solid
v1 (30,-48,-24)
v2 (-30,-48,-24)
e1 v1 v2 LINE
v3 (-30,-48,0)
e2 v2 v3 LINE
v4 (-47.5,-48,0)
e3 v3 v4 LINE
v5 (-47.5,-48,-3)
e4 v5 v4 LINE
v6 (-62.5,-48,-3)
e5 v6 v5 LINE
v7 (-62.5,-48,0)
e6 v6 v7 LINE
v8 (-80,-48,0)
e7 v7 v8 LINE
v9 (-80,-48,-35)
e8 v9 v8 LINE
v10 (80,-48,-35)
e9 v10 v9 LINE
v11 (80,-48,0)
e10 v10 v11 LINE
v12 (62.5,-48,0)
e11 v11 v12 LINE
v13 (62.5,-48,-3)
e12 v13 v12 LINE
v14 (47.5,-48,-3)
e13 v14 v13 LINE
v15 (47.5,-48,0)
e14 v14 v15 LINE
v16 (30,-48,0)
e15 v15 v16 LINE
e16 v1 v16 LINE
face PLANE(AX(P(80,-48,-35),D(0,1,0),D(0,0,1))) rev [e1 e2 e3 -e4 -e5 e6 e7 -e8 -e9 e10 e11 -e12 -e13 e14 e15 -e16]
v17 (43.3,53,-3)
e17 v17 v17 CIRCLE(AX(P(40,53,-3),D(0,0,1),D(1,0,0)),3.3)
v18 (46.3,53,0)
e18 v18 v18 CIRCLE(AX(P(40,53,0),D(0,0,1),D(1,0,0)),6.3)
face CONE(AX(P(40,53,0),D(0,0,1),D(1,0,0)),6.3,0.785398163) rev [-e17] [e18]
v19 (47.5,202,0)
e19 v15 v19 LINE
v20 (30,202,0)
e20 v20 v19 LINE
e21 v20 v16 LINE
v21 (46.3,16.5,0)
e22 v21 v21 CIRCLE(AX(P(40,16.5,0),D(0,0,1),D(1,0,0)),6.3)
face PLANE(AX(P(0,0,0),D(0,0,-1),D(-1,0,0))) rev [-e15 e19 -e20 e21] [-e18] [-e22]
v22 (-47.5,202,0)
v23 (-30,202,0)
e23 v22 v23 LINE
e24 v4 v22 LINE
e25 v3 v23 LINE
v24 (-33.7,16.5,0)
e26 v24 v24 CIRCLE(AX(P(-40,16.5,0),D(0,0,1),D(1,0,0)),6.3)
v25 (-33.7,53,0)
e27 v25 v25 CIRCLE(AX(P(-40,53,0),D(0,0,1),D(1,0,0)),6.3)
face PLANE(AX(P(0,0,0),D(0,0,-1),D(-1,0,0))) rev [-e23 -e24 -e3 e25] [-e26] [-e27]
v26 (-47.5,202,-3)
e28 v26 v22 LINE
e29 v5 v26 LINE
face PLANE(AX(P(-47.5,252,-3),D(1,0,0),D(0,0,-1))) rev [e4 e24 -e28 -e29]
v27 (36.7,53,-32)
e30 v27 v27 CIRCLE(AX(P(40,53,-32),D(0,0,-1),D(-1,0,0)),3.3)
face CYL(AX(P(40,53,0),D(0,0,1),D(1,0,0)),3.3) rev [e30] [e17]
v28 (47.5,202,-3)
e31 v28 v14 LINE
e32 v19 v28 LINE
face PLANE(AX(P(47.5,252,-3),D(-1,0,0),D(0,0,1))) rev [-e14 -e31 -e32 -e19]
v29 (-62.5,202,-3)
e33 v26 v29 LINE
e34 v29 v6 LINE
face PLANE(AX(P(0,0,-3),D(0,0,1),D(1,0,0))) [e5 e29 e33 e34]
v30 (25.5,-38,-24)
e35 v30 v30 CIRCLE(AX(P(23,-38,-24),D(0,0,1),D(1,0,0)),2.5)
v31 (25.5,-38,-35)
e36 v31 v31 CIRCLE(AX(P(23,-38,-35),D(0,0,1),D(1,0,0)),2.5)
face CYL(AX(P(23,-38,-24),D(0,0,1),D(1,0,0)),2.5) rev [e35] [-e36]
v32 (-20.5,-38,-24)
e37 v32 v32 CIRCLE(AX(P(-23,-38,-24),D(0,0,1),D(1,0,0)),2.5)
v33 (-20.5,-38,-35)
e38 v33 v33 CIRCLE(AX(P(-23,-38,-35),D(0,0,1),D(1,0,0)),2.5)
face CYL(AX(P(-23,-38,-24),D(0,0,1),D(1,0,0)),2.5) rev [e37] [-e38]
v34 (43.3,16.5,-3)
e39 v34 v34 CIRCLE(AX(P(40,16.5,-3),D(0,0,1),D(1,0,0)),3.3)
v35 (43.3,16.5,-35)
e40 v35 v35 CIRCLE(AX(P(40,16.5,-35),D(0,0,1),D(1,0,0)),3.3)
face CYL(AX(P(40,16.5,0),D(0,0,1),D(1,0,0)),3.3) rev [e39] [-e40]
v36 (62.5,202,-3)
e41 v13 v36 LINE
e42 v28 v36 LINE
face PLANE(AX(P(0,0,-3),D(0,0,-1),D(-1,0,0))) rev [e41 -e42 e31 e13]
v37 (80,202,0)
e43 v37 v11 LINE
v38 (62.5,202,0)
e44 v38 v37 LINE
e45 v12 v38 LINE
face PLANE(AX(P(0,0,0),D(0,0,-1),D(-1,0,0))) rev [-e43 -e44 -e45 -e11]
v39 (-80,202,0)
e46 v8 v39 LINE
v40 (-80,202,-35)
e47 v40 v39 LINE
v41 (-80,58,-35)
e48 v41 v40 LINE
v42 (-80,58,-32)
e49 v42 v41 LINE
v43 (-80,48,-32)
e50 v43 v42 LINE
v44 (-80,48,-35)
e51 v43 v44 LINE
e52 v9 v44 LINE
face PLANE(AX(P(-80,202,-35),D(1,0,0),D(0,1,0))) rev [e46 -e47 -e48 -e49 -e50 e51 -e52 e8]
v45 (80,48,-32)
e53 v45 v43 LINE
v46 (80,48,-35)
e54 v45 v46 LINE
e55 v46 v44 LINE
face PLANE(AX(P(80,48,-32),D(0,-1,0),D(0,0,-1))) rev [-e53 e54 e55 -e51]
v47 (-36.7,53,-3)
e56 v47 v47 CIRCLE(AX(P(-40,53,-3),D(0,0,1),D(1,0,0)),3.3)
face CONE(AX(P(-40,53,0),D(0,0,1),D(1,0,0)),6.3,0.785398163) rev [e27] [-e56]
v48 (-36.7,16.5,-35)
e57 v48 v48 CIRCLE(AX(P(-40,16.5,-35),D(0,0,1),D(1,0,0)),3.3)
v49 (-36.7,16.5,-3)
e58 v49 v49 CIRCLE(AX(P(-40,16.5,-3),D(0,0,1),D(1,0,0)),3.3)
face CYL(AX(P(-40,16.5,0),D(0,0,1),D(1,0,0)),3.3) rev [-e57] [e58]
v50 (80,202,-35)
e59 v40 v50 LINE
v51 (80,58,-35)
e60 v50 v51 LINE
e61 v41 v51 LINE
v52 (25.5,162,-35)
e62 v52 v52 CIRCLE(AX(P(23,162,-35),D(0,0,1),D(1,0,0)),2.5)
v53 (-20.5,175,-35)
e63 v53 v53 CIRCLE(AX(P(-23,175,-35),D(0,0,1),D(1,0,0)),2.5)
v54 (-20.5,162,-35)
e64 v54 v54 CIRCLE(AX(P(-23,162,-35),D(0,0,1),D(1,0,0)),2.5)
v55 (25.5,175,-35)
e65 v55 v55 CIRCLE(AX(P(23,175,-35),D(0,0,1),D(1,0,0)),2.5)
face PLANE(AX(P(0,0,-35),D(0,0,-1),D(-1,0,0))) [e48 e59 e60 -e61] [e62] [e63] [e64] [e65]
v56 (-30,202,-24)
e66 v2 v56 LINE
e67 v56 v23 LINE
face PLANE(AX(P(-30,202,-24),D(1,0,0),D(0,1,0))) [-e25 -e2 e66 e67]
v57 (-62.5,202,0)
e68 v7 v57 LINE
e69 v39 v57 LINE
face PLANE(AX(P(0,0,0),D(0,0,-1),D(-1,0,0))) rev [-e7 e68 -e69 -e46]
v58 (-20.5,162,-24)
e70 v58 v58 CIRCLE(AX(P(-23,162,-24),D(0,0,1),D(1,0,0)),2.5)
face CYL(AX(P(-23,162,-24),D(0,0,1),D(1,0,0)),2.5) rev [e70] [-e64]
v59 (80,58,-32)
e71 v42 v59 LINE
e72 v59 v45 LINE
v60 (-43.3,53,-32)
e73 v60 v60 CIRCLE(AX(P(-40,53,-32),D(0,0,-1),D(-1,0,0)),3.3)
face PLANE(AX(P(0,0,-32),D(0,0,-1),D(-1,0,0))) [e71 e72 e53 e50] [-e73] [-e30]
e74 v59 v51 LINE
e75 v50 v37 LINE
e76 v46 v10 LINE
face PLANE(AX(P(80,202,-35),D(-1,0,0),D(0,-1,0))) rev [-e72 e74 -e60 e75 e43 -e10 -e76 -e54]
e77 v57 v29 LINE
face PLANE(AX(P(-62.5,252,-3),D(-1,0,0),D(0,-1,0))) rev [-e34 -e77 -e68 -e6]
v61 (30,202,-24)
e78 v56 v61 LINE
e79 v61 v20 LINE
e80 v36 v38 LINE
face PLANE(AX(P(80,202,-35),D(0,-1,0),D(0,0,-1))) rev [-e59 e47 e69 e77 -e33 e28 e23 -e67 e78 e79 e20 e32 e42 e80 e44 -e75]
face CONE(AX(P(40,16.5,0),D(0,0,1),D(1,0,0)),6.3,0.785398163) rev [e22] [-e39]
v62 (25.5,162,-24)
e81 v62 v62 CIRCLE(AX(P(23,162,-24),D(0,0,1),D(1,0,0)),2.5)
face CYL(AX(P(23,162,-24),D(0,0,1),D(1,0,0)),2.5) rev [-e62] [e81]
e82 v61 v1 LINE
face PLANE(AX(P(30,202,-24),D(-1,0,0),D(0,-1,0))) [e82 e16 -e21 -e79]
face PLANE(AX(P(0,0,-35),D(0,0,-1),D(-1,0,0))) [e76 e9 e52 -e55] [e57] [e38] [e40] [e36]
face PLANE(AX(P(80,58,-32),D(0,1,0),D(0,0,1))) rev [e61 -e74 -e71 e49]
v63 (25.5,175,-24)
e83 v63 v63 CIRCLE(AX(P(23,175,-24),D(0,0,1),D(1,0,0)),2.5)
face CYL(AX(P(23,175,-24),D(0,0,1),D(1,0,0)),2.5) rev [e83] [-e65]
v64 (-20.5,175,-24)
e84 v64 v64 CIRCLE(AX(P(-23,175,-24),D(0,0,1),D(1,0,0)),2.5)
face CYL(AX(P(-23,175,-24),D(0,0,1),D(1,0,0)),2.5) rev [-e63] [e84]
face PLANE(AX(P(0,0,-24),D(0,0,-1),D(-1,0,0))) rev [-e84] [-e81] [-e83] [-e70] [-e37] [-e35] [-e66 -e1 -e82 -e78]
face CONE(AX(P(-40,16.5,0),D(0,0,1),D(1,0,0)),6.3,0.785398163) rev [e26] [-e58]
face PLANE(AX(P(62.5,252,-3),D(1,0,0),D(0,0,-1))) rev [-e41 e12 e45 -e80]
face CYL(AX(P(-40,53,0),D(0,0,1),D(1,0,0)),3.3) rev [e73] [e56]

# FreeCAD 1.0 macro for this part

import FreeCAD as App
import Part
import Sketcher
from FreeCAD import Vector


def add_polygon(sketch, points):
    """Adds a closed chain of lines whose ends are joined by coincident constraints."""
    first, n = sketch.GeometryCount, len(points)
    for a, b in zip(points, points[1:] + points[:1]):
        sketch.addGeometry(Part.LineSegment(App.Vector(*a, 0), App.Vector(*b, 0)), False)
    for i in range(n):
        sketch.addConstraint(Sketcher.Constraint("Coincident", first + i, 2, first + (i + 1) % n, 1))

doc = App.newDocument("Part")
body = doc.addObject("PartDesign::Body", "Body")

# Sketch on XY plane
sketch1 = doc.addObject("Sketcher::SketchObject", "Sketch")
body.addObject(sketch1)
sketch1.AttachmentSupport = (doc.XY_Plane, [""])
sketch1.MapMode = "FlatFace"
add_polygon(sketch1, [(80, 202), (80, -48), (-80, -48), (-80, 202)])  # lines 0-3
sketch1.addConstraint(Sketcher.Constraint("Vertical", 0))
sketch1.addConstraint(Sketcher.Constraint("Horizontal", 1))
sketch1.addConstraint(Sketcher.Constraint("Vertical", 2))
sketch1.addConstraint(Sketcher.Constraint("Horizontal", 3))
sketch1.addConstraint(Sketcher.Constraint("DistanceX", 1, 2, 1, 1, 160.0))
sketch1.addConstraint(Sketcher.Constraint("DistanceY", 0, 2, 0, 1, 250.0))
sketch1.addConstraint(Sketcher.Constraint("DistanceX", -1, 1, 0, 2, 80.0))
sketch1.addConstraint(Sketcher.Constraint("DistanceY", 0, 2, -1, 1, 48.0))
pad1 = doc.addObject("PartDesign::Pad", "Pad")
body.addObject(pad1)
pad1.Profile = sketch1
pad1.Length = 35
pad1.Reversed = True

# Sketch on XY plane
sketch2 = doc.addObject("Sketcher::SketchObject", "Sketch001")
body.addObject(sketch2)
sketch2.AttachmentSupport = (doc.XY_Plane, [""])
sketch2.MapMode = "FlatFace"
sketch2.AttachmentOffset = App.Placement(Vector(0, 0, -35), App.Rotation())
add_polygon(sketch2, [(80, 58), (80, 48), (-80, 48), (-80, 58)])  # lines 0-3
sketch2.addConstraint(Sketcher.Constraint("Vertical", 0))
sketch2.addConstraint(Sketcher.Constraint("Horizontal", 1))
sketch2.addConstraint(Sketcher.Constraint("Vertical", 2))
sketch2.addConstraint(Sketcher.Constraint("Horizontal", 3))
sketch2.addConstraint(Sketcher.Constraint("DistanceX", 1, 2, 1, 1, 160.0))
sketch2.addConstraint(Sketcher.Constraint("DistanceY", 0, 2, 0, 1, 10.0))
sketch2.addConstraint(Sketcher.Constraint("DistanceX", -1, 1, 0, 2, 80.0))
sketch2.addConstraint(Sketcher.Constraint("DistanceY", -1, 1, 0, 2, 48.0))
pocket1 = doc.addObject("PartDesign::Pocket", "Pocket")
body.addObject(pocket1)
pocket1.Profile = sketch2
pocket1.Length = 3
pocket1.Reversed = True

# Sketch on XY plane
sketch3 = doc.addObject("Sketcher::SketchObject", "Sketch002")
body.addObject(sketch3)
sketch3.AttachmentSupport = (doc.XY_Plane, [""])
sketch3.MapMode = "FlatFace"
sketch3.addGeometry(Part.Circle(Vector(-40, 53, 0), Vector(0, 0, 1), 3.3), False)
sketch3.addGeometry(Part.Circle(Vector(40, 53, 0), Vector(0, 0, 1), 3.3), False)
sketch3.addGeometry(Part.Circle(Vector(-40, 16.5, 0), Vector(0, 0, 1), 3.3), False)
sketch3.addGeometry(Part.Circle(Vector(40, 16.5, 0), Vector(0, 0, 1), 3.3), False)
sketch3.addConstraint(Sketcher.Constraint("Equal", 0, 1))
sketch3.addConstraint(Sketcher.Constraint("Equal", 1, 2))
sketch3.addConstraint(Sketcher.Constraint("Equal", 2, 3))
sketch3.addConstraint(Sketcher.Constraint("Symmetric", 0, 3, 1, 3, -2))
sketch3.addConstraint(Sketcher.Constraint("Symmetric", 2, 3, 3, 3, -2))
sketch3.addConstraint(Sketcher.Constraint("Vertical", 0, 3, 2, 3))
sketch3.addConstraint(Sketcher.Constraint("Diameter", 0, 6.6))
sketch3.addConstraint(Sketcher.Constraint("DistanceX", 0, 3, -1, 1, 40.0))
sketch3.addConstraint(Sketcher.Constraint("DistanceY", -1, 1, 0, 3, 53.0))
sketch3.addConstraint(Sketcher.Constraint("DistanceY", -1, 1, 2, 3, 16.5))
doc.recompute()
hole = doc.addObject("PartDesign::Hole", "Hole")
body.addObject(hole)
hole.Profile = sketch3
hole.ThreadType = "None"
hole.Diameter = 6.6
hole.DepthType = "ThroughAll"
hole.HoleCutType = "Countersink"
hole.HoleCutDiameter = 12.6
hole.HoleCutCountersinkAngle = 90

# Sketch on XY plane
sketch4 = doc.addObject("Sketcher::SketchObject", "Sketch003")
body.addObject(sketch4)
sketch4.AttachmentSupport = (doc.XY_Plane, [""])
sketch4.MapMode = "FlatFace"
add_polygon(sketch4, [(30, 202), (30, -48), (-30, -48), (-30, 202)])  # lines 0-3
sketch4.addConstraint(Sketcher.Constraint("Vertical", 0))
sketch4.addConstraint(Sketcher.Constraint("Horizontal", 1))
sketch4.addConstraint(Sketcher.Constraint("Vertical", 2))
sketch4.addConstraint(Sketcher.Constraint("Horizontal", 3))
sketch4.addConstraint(Sketcher.Constraint("DistanceX", 1, 2, 1, 1, 60.0))
sketch4.addConstraint(Sketcher.Constraint("DistanceY", 0, 2, 0, 1, 250.0))
sketch4.addConstraint(Sketcher.Constraint("DistanceX", -1, 1, 0, 2, 30.0))
sketch4.addConstraint(Sketcher.Constraint("DistanceY", 0, 2, -1, 1, 48.0))
pocket2 = doc.addObject("PartDesign::Pocket", "Pocket001")
body.addObject(pocket2)
pocket2.Profile = sketch4
pocket2.Length = 24

# Sketch on XY plane
sketch5 = doc.addObject("Sketcher::SketchObject", "Sketch004")
body.addObject(sketch5)
sketch5.AttachmentSupport = (doc.XY_Plane, [""])
sketch5.MapMode = "FlatFace"
add_polygon(sketch5, [(-62, 252), (-62, -48), (-48, -48), (-48, 252)])  # lines 0-3
add_polygon(sketch5, [(48, 252), (48, -48), (62, -48), (62, 252)])  # lines 4-7
sketch5.addConstraint(Sketcher.Constraint("Vertical", 0))
sketch5.addConstraint(Sketcher.Constraint("Horizontal", 1))
sketch5.addConstraint(Sketcher.Constraint("Vertical", 2))
sketch5.addConstraint(Sketcher.Constraint("Horizontal", 3))
sketch5.addConstraint(Sketcher.Constraint("Vertical", 4))
sketch5.addConstraint(Sketcher.Constraint("Horizontal", 5))
sketch5.addConstraint(Sketcher.Constraint("Vertical", 6))
sketch5.addConstraint(Sketcher.Constraint("Horizontal", 7))
sketch5.addConstraint(Sketcher.Constraint("Symmetric", 1, 2, 4, 2, -2))
sketch5.addConstraint(Sketcher.Constraint("Symmetric", 3, 2, 6, 2, -2))
sketch5.addConstraint(Sketcher.Constraint("DistanceX", 1, 1, 1, 2, 15.0))
sketch5.addConstraint(Sketcher.Constraint("DistanceY", 0, 2, 0, 1, 300.0))
sketch5.addConstraint(Sketcher.Constraint("DistanceY", 0, 2, -1, 1, 48.0))
sketch5.addConstraint(Sketcher.Constraint("DistanceX", 1, 2, 4, 2, 95.0))
pocket3 = doc.addObject("PartDesign::Pocket", "Pocket002")
body.addObject(pocket3)
pocket3.Profile = sketch5
pocket3.Length = 3

# Sketch on XY plane
sketch6 = doc.addObject("Sketcher::SketchObject", "Sketch005")
body.addObject(sketch6)
sketch6.AttachmentSupport = (doc.XY_Plane, [""])
sketch6.MapMode = "FlatFace"
sketch6.AttachmentOffset = App.Placement(Vector(0, 0, -24), App.Rotation())
sketch6.addGeometry(Part.Circle(Vector(-23, -38, 0), Vector(0, 0, 1), 2.5), False)
sketch6.addGeometry(Part.Circle(Vector(23, -38, 0), Vector(0, 0, 1), 2.5), False)
sketch6.addConstraint(Sketcher.Constraint("Equal", 0, 1))
sketch6.addConstraint(Sketcher.Constraint("Symmetric", 0, 3, 1, 3, -2))
sketch6.addConstraint(Sketcher.Constraint("Diameter", 0, 5.0))
sketch6.addConstraint(Sketcher.Constraint("DistanceX", 0, 3, -1, 1, 23.0))
sketch6.addConstraint(Sketcher.Constraint("DistanceY", 0, 3, -1, 1, 38.0))
doc.recompute()
hole2 = doc.addObject("PartDesign::Hole", "Hole001")
body.addObject(hole2)
hole2.Profile = sketch6
hole2.ThreadType = "None"
hole2.Diameter = 5
hole2.DepthType = "ThroughAll"

# Sketch on XY plane
sketch7 = doc.addObject("Sketcher::SketchObject", "Sketch006")
body.addObject(sketch7)
sketch7.AttachmentSupport = (doc.XY_Plane, [""])
sketch7.MapMode = "FlatFace"
sketch7.AttachmentOffset = App.Placement(Vector(0, 0, -24), App.Rotation())
sketch7.addGeometry(Part.Circle(Vector(-23, 162, 0), Vector(0, 0, 1), 2.5), False)
sketch7.addGeometry(Part.Circle(Vector(23, 162, 0), Vector(0, 0, 1), 2.5), False)
sketch7.addGeometry(Part.Circle(Vector(-23, 175, 0), Vector(0, 0, 1), 2.5), False)
sketch7.addGeometry(Part.Circle(Vector(23, 175, 0), Vector(0, 0, 1), 2.5), False)
sketch7.addConstraint(Sketcher.Constraint("Equal", 0, 1))
sketch7.addConstraint(Sketcher.Constraint("Equal", 1, 2))
sketch7.addConstraint(Sketcher.Constraint("Equal", 2, 3))
sketch7.addConstraint(Sketcher.Constraint("Symmetric", 0, 3, 1, 3, -2))
sketch7.addConstraint(Sketcher.Constraint("Symmetric", 2, 3, 3, 3, -2))
sketch7.addConstraint(Sketcher.Constraint("Vertical", 0, 3, 2, 3))
sketch7.addConstraint(Sketcher.Constraint("Diameter", 0, 5.0))
sketch7.addConstraint(Sketcher.Constraint("DistanceX", 0, 3, -1, 1, 23.0))
sketch7.addConstraint(Sketcher.Constraint("DistanceY", -1, 1, 0, 3, 162.0))
sketch7.addConstraint(Sketcher.Constraint("DistanceY", -1, 1, 2, 3, 175.0))
doc.recompute()
hole3 = doc.addObject("PartDesign::Hole", "Hole002")
body.addObject(hole3)
hole3.Profile = sketch7
hole3.ThreadType = "None"
hole3.Diameter = 5
hole3.DepthType = "ThroughAll"

doc.recompute()
